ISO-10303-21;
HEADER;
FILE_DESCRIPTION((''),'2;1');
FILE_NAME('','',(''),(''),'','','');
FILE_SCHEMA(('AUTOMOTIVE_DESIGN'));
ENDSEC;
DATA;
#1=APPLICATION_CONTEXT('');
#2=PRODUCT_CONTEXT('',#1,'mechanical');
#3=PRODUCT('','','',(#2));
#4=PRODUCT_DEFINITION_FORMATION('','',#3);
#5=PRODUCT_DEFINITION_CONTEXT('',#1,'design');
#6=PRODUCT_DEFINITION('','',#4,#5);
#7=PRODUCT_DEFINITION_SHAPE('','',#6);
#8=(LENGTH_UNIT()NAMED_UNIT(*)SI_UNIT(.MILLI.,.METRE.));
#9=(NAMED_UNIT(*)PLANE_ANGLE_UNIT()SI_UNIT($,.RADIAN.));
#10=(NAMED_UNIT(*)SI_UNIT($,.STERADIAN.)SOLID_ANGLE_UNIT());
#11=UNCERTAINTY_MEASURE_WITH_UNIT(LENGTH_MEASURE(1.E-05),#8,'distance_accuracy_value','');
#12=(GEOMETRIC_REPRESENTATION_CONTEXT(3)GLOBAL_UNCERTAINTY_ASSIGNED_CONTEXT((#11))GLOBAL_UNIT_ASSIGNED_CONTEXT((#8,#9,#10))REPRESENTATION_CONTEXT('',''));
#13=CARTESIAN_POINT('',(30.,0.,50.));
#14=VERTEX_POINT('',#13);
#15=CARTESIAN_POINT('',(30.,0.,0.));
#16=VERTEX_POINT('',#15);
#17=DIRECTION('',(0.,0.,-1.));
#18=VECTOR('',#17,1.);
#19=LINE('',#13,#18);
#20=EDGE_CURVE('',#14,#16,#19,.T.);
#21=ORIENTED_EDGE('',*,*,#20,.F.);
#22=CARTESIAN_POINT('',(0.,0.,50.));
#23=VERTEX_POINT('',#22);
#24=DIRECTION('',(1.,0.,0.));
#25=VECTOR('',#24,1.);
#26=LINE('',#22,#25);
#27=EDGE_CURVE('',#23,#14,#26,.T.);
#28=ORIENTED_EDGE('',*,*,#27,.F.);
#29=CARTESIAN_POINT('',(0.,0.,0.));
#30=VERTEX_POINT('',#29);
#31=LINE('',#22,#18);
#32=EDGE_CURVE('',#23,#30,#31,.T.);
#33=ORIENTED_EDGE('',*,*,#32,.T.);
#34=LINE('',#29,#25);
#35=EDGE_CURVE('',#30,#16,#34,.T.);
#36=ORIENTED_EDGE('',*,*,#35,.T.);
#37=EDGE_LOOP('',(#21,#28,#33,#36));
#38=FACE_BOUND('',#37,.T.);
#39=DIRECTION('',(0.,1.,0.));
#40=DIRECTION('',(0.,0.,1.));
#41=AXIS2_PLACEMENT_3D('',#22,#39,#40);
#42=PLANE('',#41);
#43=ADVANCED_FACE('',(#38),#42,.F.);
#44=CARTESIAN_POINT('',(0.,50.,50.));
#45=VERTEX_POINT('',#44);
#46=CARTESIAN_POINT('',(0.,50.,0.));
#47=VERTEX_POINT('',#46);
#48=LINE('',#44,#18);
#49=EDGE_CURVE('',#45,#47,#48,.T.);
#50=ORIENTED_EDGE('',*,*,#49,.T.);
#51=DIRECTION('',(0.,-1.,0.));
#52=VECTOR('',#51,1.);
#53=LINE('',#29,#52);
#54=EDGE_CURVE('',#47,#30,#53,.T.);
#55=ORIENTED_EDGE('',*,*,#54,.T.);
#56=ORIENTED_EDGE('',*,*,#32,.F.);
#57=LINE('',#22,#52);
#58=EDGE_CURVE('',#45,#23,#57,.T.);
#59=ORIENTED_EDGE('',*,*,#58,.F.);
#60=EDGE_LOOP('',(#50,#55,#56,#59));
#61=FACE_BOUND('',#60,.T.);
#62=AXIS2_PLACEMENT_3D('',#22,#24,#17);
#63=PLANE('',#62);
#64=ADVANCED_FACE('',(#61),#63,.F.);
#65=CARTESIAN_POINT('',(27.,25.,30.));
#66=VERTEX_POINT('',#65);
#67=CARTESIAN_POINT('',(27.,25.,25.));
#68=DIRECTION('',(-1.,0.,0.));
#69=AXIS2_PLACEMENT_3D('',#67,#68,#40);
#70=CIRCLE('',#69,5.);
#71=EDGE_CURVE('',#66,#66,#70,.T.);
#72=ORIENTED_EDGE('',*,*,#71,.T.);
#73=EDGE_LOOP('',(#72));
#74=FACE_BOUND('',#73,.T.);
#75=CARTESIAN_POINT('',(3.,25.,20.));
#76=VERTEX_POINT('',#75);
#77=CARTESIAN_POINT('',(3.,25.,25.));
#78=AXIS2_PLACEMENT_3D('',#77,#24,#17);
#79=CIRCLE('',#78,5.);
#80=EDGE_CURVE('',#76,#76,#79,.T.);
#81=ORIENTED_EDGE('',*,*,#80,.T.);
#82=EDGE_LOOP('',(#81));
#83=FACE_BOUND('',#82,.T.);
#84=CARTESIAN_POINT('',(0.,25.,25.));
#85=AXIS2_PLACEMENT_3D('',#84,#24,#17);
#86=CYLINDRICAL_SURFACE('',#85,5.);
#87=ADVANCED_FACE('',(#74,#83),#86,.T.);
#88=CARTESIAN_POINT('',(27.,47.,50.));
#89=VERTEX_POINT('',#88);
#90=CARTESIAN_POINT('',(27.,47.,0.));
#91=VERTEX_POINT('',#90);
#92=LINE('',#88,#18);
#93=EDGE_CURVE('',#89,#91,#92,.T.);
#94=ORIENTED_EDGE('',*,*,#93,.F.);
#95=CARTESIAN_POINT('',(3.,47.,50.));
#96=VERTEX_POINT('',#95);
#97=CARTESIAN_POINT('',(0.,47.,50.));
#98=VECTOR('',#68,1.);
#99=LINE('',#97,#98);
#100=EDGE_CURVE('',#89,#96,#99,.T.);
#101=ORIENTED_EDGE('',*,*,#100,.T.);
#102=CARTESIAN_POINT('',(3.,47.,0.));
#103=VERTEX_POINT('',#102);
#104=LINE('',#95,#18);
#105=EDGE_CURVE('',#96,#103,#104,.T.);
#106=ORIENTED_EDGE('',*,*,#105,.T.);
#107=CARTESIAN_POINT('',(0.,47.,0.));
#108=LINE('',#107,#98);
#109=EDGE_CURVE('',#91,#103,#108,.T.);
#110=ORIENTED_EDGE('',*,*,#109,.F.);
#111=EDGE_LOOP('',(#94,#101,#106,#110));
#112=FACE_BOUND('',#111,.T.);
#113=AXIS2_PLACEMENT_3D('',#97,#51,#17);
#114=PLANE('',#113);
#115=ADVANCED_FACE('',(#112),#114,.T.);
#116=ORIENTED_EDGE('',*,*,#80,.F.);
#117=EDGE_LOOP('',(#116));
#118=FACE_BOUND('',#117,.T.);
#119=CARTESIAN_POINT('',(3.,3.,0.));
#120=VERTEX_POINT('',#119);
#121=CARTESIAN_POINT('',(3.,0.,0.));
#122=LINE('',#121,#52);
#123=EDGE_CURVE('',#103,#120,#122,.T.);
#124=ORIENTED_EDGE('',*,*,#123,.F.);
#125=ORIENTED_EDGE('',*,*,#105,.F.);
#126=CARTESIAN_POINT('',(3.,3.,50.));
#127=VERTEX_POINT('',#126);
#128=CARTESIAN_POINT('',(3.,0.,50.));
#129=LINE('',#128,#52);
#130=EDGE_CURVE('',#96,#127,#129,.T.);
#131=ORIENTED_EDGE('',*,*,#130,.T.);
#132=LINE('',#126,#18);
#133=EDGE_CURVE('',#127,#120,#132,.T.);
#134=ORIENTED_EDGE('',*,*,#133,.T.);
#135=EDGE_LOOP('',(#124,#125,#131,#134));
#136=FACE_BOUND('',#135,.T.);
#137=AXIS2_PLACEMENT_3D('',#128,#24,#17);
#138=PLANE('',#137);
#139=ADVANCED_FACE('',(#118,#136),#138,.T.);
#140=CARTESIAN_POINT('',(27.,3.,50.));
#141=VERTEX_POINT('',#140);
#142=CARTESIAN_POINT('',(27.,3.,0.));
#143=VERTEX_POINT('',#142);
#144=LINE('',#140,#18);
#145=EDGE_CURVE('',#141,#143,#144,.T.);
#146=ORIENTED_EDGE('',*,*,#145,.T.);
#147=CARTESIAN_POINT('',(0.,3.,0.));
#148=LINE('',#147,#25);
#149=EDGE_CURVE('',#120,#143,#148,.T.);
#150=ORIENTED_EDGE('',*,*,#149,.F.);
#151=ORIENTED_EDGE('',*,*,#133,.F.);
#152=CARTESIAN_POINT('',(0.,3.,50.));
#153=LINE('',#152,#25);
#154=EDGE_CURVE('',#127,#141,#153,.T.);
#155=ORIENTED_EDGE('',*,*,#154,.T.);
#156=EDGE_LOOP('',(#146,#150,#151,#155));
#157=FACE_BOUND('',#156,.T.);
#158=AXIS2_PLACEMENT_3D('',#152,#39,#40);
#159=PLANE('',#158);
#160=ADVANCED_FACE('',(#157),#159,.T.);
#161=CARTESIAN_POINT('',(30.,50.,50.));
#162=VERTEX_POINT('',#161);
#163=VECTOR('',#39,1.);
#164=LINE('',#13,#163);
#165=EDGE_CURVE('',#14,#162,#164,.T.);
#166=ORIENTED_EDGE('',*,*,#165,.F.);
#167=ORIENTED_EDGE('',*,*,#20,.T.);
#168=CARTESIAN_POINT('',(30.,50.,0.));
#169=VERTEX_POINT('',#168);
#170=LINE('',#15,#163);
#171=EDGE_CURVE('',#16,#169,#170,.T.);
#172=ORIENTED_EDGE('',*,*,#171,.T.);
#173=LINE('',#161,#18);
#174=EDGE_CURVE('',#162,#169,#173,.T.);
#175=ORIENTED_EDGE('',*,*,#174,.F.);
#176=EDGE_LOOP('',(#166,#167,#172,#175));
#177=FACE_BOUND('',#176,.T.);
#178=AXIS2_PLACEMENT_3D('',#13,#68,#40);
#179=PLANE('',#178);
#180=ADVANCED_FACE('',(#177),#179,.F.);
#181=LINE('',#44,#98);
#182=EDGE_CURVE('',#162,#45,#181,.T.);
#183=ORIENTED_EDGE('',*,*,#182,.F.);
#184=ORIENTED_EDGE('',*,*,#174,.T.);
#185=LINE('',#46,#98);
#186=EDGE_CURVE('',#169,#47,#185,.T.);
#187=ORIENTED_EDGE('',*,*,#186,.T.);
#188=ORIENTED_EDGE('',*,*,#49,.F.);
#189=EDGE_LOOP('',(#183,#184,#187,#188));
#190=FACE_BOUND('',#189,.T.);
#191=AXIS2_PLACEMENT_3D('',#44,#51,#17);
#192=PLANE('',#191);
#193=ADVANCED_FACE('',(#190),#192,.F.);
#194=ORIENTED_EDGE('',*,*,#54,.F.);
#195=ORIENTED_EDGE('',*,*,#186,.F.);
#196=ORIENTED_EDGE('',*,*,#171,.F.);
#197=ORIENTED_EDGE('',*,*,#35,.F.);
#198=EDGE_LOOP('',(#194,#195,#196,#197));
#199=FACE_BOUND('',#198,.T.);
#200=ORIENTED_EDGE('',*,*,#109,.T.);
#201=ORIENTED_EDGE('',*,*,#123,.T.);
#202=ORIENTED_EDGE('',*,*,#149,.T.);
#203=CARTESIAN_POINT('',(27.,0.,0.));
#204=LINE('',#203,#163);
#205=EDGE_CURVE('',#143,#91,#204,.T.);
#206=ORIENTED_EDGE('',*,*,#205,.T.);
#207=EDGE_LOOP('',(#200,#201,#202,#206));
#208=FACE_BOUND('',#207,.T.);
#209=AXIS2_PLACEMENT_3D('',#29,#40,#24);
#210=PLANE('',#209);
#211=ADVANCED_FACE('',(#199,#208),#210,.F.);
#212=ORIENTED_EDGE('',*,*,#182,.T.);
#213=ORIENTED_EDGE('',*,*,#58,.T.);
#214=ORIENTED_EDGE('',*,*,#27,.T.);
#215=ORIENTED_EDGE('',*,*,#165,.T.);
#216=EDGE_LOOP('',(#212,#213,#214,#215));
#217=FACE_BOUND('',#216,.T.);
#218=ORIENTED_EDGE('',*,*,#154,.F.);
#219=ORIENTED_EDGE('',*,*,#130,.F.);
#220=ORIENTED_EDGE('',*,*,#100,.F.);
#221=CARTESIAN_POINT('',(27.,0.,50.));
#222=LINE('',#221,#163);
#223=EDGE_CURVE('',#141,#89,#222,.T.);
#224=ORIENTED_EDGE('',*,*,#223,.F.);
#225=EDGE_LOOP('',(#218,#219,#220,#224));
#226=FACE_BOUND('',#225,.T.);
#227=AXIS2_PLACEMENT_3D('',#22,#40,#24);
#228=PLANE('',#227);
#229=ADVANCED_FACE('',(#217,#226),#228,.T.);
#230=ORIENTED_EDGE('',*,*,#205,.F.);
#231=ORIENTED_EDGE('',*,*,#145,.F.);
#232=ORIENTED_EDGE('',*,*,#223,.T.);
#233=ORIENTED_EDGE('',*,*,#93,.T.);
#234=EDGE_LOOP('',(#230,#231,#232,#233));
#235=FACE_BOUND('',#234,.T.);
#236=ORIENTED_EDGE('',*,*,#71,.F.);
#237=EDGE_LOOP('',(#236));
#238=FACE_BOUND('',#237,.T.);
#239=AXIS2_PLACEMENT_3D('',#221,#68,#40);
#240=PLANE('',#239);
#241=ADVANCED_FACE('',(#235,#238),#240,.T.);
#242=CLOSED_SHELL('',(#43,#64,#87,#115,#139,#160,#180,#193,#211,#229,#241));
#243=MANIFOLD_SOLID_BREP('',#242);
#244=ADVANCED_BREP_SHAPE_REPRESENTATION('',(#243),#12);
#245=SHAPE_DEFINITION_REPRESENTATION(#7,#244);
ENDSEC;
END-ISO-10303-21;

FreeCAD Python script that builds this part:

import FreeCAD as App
import Part
import Sketcher

V = App.Vector

doc = App.newDocument("Part")
body = doc.addObject("PartDesign::Body", "Body")

# Sketch on XY plane
sketch1 = doc.addObject("Sketcher::SketchObject", "Sketch")
body.addObject(sketch1)
sketch1.AttachmentSupport = (doc.XY_Plane, [""])
sketch1.MapMode = "FlatFace"
sketch1.addGeometry(Part.LineSegment(V(0, 50, 0), V(0, 0, 0)), False)
sketch1.addGeometry(Part.LineSegment(V(0, 0, 0), V(30, 0, 0)), False)
sketch1.addGeometry(Part.LineSegment(V(30, 0, 0), V(30, 50, 0)), False)
sketch1.addGeometry(Part.LineSegment(V(30, 50, 0), V(0, 50, 0)), False)
sketch1.addGeometry(Part.LineSegment(V(27, 3, 0), V(3, 3, 0)), False)
sketch1.addGeometry(Part.LineSegment(V(3, 3, 0), V(3, 47, 0)), False)
sketch1.addGeometry(Part.LineSegment(V(3, 47, 0), V(27, 47, 0)), False)
sketch1.addGeometry(Part.LineSegment(V(27, 47, 0), V(27, 3, 0)), False)
sketch1.addConstraint(Sketcher.Constraint("Coincident", 0, 2, 1, 1))
sketch1.addConstraint(Sketcher.Constraint("Coincident", 1, 2, 2, 1))
sketch1.addConstraint(Sketcher.Constraint("Coincident", 2, 2, 3, 1))
sketch1.addConstraint(Sketcher.Constraint("Coincident", 3, 2, 0, 1))
sketch1.addConstraint(Sketcher.Constraint("Coincident", 4, 2, 5, 1))
sketch1.addConstraint(Sketcher.Constraint("Coincident", 5, 2, 6, 1))
sketch1.addConstraint(Sketcher.Constraint("Coincident", 6, 2, 7, 1))
sketch1.addConstraint(Sketcher.Constraint("Coincident", 7, 2, 4, 1))
sketch1.addConstraint(Sketcher.Constraint("Vertical", 0))
sketch1.addConstraint(Sketcher.Constraint("Horizontal", 1))
sketch1.addConstraint(Sketcher.Constraint("Vertical", 2))
sketch1.addConstraint(Sketcher.Constraint("Horizontal", 3))
sketch1.addConstraint(Sketcher.Constraint("Horizontal", 4))
sketch1.addConstraint(Sketcher.Constraint("Vertical", 5))
sketch1.addConstraint(Sketcher.Constraint("Horizontal", 6))
sketch1.addConstraint(Sketcher.Constraint("Vertical", 7))
sketch1.addConstraint(Sketcher.Constraint("Coincident", 0, 2, -1, 1))
sketch1.addConstraint(Sketcher.Constraint("DistanceX", 1, 1, 1, 2, 30.0))
sketch1.addConstraint(Sketcher.Constraint("DistanceX", 4, 2, 4, 1, 24.0))
sketch1.addConstraint(Sketcher.Constraint("DistanceY", 0, 2, 0, 1, 50.0))
sketch1.addConstraint(Sketcher.Constraint("DistanceY", 5, 1, 5, 2, 44.0))
sketch1.addConstraint(Sketcher.Constraint("DistanceX", -1, 1, 4, 2, 3.0))
sketch1.addConstraint(Sketcher.Constraint("DistanceY", -1, 1, 4, 2, 3.0))
pad1 = doc.addObject("PartDesign::Pad", "Pad")
body.addObject(pad1)
pad1.Profile = sketch1
pad1.Length = 50

# Sketch on YZ plane
sketch2 = doc.addObject("Sketcher::SketchObject", "Sketch001")
body.addObject(sketch2)
sketch2.AttachmentSupport = (doc.YZ_Plane, [""])
sketch2.MapMode = "FlatFace"
sketch2.AttachmentOffset = App.Placement(V(0, 0, 30), App.Rotation())
sketch2.addGeometry(Part.Circle(V(25, 25, 0), V(0, 0, 1), 5), False)
sketch2.addConstraint(Sketcher.Constraint("Diameter", 0, 10.0))
sketch2.addConstraint(Sketcher.Constraint("DistanceX", -1, 1, 0, 3, 25.0))
sketch2.addConstraint(Sketcher.Constraint("DistanceY", -1, 1, 0, 3, 25.0))
pad2 = doc.addObject("PartDesign::Pad", "Pad001")
body.addObject(pad2)
pad2.Profile = sketch2
pad2.Length = 27
pad2.Reversed = True

doc.recompute()
